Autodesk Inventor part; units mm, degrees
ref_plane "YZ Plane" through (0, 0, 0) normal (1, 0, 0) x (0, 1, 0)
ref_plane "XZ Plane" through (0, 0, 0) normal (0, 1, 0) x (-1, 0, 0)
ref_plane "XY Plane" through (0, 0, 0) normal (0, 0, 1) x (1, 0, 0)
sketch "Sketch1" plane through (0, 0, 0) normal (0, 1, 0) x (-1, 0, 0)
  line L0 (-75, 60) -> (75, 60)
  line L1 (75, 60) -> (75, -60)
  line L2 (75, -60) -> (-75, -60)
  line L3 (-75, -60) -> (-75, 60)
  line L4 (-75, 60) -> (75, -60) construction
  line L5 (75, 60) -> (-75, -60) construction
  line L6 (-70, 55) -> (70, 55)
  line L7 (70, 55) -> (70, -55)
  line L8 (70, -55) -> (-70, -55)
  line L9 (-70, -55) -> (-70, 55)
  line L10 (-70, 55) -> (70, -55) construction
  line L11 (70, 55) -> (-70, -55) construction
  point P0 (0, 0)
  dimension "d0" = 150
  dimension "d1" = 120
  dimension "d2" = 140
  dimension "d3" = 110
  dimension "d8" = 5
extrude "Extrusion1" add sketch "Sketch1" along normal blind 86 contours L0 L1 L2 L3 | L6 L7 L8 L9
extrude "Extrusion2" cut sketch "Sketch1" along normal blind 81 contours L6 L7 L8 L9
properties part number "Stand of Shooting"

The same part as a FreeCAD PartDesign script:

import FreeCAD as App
import Part
import Sketcher
from FreeCAD import Vector
Q = App.Units.Quantity

doc = App.newDocument("Part")
body = doc.addObject("PartDesign::Body", "Body")

# Sketch on XZ plane
sketch1 = doc.addObject("Sketcher::SketchObject", "Sketch")
body.addObject(sketch1)
sketch1.AttachmentSupport = (doc.XZ_Plane, [""])
sketch1.MapMode = "FlatFace"
sketch1.addGeometry([
    Part.LineSegment(Vector(-75, 60, 0), Vector(75, 60, 0)),
    Part.LineSegment(Vector(75, 60, 0), Vector(75, -60, 0)),
    Part.LineSegment(Vector(75, -60, 0), Vector(-75, -60, 0)),
    Part.LineSegment(Vector(-75, -60, 0), Vector(-75, 60, 0)),
], False)
sketch1.addConstraint([
    Sketcher.Constraint("Coincident", 0, 2, 1, 1),
    Sketcher.Constraint("Coincident", 1, 2, 2, 1),
    Sketcher.Constraint("Coincident", 2, 2, 3, 1),
    Sketcher.Constraint("Coincident", 3, 2, 0, 1),
    Sketcher.Constraint("Horizontal", 0),
    Sketcher.Constraint("Vertical", 1),
    Sketcher.Constraint("Horizontal", 2),
    Sketcher.Constraint("Vertical", 3),
    Sketcher.Constraint("Symmetric", 0, 2, 2, 2, -1, 1),
    Sketcher.Constraint("DistanceX", 0, 1, 0, 2, Q("150 mm")),
    Sketcher.Constraint("DistanceY", 1, 2, 1, 1, Q("120 mm")),
])
pad1 = doc.addObject("PartDesign::Pad", "Pad")
body.addObject(pad1)
pad1.Profile = sketch1
pad1.Length = 86
pad1.Reversed = True

# Sketch on XZ plane
sketch2 = doc.addObject("Sketcher::SketchObject", "Sketch001")
body.addObject(sketch2)
sketch2.AttachmentSupport = (doc.XZ_Plane, [""])
sketch2.MapMode = "FlatFace"
sketch2.addGeometry([
    Part.LineSegment(Vector(-70, 55, 0), Vector(70, 55, 0)),
    Part.LineSegment(Vector(70, 55, 0), Vector(70, -55, 0)),
    Part.LineSegment(Vector(70, -55, 0), Vector(-70, -55, 0)),
    Part.LineSegment(Vector(-70, -55, 0), Vector(-70, 55, 0)),
], False)
sketch2.addConstraint([
    Sketcher.Constraint("Coincident", 0, 2, 1, 1),
    Sketcher.Constraint("Coincident", 1, 2, 2, 1),
    Sketcher.Constraint("Coincident", 2, 2, 3, 1),
    Sketcher.Constraint("Coincident", 3, 2, 0, 1),
    Sketcher.Constraint("Horizontal", 0),
    Sketcher.Constraint("Vertical", 1),
    Sketcher.Constraint("Horizontal", 2),
    Sketcher.Constraint("Vertical", 3),
    Sketcher.Constraint("Symmetric", 0, 2, 2, 2, -1, 1),
    Sketcher.Constraint("DistanceX", 0, 1, 0, 2, Q("140 mm")),
    Sketcher.Constraint("DistanceY", 1, 2, 1, 1, Q("110 mm")),
])
pocket1 = doc.addObject("PartDesign::Pocket", "Pocket")
body.addObject(pocket1)
pocket1.Profile = sketch2
pocket1.Length = 81

doc.recompute()
